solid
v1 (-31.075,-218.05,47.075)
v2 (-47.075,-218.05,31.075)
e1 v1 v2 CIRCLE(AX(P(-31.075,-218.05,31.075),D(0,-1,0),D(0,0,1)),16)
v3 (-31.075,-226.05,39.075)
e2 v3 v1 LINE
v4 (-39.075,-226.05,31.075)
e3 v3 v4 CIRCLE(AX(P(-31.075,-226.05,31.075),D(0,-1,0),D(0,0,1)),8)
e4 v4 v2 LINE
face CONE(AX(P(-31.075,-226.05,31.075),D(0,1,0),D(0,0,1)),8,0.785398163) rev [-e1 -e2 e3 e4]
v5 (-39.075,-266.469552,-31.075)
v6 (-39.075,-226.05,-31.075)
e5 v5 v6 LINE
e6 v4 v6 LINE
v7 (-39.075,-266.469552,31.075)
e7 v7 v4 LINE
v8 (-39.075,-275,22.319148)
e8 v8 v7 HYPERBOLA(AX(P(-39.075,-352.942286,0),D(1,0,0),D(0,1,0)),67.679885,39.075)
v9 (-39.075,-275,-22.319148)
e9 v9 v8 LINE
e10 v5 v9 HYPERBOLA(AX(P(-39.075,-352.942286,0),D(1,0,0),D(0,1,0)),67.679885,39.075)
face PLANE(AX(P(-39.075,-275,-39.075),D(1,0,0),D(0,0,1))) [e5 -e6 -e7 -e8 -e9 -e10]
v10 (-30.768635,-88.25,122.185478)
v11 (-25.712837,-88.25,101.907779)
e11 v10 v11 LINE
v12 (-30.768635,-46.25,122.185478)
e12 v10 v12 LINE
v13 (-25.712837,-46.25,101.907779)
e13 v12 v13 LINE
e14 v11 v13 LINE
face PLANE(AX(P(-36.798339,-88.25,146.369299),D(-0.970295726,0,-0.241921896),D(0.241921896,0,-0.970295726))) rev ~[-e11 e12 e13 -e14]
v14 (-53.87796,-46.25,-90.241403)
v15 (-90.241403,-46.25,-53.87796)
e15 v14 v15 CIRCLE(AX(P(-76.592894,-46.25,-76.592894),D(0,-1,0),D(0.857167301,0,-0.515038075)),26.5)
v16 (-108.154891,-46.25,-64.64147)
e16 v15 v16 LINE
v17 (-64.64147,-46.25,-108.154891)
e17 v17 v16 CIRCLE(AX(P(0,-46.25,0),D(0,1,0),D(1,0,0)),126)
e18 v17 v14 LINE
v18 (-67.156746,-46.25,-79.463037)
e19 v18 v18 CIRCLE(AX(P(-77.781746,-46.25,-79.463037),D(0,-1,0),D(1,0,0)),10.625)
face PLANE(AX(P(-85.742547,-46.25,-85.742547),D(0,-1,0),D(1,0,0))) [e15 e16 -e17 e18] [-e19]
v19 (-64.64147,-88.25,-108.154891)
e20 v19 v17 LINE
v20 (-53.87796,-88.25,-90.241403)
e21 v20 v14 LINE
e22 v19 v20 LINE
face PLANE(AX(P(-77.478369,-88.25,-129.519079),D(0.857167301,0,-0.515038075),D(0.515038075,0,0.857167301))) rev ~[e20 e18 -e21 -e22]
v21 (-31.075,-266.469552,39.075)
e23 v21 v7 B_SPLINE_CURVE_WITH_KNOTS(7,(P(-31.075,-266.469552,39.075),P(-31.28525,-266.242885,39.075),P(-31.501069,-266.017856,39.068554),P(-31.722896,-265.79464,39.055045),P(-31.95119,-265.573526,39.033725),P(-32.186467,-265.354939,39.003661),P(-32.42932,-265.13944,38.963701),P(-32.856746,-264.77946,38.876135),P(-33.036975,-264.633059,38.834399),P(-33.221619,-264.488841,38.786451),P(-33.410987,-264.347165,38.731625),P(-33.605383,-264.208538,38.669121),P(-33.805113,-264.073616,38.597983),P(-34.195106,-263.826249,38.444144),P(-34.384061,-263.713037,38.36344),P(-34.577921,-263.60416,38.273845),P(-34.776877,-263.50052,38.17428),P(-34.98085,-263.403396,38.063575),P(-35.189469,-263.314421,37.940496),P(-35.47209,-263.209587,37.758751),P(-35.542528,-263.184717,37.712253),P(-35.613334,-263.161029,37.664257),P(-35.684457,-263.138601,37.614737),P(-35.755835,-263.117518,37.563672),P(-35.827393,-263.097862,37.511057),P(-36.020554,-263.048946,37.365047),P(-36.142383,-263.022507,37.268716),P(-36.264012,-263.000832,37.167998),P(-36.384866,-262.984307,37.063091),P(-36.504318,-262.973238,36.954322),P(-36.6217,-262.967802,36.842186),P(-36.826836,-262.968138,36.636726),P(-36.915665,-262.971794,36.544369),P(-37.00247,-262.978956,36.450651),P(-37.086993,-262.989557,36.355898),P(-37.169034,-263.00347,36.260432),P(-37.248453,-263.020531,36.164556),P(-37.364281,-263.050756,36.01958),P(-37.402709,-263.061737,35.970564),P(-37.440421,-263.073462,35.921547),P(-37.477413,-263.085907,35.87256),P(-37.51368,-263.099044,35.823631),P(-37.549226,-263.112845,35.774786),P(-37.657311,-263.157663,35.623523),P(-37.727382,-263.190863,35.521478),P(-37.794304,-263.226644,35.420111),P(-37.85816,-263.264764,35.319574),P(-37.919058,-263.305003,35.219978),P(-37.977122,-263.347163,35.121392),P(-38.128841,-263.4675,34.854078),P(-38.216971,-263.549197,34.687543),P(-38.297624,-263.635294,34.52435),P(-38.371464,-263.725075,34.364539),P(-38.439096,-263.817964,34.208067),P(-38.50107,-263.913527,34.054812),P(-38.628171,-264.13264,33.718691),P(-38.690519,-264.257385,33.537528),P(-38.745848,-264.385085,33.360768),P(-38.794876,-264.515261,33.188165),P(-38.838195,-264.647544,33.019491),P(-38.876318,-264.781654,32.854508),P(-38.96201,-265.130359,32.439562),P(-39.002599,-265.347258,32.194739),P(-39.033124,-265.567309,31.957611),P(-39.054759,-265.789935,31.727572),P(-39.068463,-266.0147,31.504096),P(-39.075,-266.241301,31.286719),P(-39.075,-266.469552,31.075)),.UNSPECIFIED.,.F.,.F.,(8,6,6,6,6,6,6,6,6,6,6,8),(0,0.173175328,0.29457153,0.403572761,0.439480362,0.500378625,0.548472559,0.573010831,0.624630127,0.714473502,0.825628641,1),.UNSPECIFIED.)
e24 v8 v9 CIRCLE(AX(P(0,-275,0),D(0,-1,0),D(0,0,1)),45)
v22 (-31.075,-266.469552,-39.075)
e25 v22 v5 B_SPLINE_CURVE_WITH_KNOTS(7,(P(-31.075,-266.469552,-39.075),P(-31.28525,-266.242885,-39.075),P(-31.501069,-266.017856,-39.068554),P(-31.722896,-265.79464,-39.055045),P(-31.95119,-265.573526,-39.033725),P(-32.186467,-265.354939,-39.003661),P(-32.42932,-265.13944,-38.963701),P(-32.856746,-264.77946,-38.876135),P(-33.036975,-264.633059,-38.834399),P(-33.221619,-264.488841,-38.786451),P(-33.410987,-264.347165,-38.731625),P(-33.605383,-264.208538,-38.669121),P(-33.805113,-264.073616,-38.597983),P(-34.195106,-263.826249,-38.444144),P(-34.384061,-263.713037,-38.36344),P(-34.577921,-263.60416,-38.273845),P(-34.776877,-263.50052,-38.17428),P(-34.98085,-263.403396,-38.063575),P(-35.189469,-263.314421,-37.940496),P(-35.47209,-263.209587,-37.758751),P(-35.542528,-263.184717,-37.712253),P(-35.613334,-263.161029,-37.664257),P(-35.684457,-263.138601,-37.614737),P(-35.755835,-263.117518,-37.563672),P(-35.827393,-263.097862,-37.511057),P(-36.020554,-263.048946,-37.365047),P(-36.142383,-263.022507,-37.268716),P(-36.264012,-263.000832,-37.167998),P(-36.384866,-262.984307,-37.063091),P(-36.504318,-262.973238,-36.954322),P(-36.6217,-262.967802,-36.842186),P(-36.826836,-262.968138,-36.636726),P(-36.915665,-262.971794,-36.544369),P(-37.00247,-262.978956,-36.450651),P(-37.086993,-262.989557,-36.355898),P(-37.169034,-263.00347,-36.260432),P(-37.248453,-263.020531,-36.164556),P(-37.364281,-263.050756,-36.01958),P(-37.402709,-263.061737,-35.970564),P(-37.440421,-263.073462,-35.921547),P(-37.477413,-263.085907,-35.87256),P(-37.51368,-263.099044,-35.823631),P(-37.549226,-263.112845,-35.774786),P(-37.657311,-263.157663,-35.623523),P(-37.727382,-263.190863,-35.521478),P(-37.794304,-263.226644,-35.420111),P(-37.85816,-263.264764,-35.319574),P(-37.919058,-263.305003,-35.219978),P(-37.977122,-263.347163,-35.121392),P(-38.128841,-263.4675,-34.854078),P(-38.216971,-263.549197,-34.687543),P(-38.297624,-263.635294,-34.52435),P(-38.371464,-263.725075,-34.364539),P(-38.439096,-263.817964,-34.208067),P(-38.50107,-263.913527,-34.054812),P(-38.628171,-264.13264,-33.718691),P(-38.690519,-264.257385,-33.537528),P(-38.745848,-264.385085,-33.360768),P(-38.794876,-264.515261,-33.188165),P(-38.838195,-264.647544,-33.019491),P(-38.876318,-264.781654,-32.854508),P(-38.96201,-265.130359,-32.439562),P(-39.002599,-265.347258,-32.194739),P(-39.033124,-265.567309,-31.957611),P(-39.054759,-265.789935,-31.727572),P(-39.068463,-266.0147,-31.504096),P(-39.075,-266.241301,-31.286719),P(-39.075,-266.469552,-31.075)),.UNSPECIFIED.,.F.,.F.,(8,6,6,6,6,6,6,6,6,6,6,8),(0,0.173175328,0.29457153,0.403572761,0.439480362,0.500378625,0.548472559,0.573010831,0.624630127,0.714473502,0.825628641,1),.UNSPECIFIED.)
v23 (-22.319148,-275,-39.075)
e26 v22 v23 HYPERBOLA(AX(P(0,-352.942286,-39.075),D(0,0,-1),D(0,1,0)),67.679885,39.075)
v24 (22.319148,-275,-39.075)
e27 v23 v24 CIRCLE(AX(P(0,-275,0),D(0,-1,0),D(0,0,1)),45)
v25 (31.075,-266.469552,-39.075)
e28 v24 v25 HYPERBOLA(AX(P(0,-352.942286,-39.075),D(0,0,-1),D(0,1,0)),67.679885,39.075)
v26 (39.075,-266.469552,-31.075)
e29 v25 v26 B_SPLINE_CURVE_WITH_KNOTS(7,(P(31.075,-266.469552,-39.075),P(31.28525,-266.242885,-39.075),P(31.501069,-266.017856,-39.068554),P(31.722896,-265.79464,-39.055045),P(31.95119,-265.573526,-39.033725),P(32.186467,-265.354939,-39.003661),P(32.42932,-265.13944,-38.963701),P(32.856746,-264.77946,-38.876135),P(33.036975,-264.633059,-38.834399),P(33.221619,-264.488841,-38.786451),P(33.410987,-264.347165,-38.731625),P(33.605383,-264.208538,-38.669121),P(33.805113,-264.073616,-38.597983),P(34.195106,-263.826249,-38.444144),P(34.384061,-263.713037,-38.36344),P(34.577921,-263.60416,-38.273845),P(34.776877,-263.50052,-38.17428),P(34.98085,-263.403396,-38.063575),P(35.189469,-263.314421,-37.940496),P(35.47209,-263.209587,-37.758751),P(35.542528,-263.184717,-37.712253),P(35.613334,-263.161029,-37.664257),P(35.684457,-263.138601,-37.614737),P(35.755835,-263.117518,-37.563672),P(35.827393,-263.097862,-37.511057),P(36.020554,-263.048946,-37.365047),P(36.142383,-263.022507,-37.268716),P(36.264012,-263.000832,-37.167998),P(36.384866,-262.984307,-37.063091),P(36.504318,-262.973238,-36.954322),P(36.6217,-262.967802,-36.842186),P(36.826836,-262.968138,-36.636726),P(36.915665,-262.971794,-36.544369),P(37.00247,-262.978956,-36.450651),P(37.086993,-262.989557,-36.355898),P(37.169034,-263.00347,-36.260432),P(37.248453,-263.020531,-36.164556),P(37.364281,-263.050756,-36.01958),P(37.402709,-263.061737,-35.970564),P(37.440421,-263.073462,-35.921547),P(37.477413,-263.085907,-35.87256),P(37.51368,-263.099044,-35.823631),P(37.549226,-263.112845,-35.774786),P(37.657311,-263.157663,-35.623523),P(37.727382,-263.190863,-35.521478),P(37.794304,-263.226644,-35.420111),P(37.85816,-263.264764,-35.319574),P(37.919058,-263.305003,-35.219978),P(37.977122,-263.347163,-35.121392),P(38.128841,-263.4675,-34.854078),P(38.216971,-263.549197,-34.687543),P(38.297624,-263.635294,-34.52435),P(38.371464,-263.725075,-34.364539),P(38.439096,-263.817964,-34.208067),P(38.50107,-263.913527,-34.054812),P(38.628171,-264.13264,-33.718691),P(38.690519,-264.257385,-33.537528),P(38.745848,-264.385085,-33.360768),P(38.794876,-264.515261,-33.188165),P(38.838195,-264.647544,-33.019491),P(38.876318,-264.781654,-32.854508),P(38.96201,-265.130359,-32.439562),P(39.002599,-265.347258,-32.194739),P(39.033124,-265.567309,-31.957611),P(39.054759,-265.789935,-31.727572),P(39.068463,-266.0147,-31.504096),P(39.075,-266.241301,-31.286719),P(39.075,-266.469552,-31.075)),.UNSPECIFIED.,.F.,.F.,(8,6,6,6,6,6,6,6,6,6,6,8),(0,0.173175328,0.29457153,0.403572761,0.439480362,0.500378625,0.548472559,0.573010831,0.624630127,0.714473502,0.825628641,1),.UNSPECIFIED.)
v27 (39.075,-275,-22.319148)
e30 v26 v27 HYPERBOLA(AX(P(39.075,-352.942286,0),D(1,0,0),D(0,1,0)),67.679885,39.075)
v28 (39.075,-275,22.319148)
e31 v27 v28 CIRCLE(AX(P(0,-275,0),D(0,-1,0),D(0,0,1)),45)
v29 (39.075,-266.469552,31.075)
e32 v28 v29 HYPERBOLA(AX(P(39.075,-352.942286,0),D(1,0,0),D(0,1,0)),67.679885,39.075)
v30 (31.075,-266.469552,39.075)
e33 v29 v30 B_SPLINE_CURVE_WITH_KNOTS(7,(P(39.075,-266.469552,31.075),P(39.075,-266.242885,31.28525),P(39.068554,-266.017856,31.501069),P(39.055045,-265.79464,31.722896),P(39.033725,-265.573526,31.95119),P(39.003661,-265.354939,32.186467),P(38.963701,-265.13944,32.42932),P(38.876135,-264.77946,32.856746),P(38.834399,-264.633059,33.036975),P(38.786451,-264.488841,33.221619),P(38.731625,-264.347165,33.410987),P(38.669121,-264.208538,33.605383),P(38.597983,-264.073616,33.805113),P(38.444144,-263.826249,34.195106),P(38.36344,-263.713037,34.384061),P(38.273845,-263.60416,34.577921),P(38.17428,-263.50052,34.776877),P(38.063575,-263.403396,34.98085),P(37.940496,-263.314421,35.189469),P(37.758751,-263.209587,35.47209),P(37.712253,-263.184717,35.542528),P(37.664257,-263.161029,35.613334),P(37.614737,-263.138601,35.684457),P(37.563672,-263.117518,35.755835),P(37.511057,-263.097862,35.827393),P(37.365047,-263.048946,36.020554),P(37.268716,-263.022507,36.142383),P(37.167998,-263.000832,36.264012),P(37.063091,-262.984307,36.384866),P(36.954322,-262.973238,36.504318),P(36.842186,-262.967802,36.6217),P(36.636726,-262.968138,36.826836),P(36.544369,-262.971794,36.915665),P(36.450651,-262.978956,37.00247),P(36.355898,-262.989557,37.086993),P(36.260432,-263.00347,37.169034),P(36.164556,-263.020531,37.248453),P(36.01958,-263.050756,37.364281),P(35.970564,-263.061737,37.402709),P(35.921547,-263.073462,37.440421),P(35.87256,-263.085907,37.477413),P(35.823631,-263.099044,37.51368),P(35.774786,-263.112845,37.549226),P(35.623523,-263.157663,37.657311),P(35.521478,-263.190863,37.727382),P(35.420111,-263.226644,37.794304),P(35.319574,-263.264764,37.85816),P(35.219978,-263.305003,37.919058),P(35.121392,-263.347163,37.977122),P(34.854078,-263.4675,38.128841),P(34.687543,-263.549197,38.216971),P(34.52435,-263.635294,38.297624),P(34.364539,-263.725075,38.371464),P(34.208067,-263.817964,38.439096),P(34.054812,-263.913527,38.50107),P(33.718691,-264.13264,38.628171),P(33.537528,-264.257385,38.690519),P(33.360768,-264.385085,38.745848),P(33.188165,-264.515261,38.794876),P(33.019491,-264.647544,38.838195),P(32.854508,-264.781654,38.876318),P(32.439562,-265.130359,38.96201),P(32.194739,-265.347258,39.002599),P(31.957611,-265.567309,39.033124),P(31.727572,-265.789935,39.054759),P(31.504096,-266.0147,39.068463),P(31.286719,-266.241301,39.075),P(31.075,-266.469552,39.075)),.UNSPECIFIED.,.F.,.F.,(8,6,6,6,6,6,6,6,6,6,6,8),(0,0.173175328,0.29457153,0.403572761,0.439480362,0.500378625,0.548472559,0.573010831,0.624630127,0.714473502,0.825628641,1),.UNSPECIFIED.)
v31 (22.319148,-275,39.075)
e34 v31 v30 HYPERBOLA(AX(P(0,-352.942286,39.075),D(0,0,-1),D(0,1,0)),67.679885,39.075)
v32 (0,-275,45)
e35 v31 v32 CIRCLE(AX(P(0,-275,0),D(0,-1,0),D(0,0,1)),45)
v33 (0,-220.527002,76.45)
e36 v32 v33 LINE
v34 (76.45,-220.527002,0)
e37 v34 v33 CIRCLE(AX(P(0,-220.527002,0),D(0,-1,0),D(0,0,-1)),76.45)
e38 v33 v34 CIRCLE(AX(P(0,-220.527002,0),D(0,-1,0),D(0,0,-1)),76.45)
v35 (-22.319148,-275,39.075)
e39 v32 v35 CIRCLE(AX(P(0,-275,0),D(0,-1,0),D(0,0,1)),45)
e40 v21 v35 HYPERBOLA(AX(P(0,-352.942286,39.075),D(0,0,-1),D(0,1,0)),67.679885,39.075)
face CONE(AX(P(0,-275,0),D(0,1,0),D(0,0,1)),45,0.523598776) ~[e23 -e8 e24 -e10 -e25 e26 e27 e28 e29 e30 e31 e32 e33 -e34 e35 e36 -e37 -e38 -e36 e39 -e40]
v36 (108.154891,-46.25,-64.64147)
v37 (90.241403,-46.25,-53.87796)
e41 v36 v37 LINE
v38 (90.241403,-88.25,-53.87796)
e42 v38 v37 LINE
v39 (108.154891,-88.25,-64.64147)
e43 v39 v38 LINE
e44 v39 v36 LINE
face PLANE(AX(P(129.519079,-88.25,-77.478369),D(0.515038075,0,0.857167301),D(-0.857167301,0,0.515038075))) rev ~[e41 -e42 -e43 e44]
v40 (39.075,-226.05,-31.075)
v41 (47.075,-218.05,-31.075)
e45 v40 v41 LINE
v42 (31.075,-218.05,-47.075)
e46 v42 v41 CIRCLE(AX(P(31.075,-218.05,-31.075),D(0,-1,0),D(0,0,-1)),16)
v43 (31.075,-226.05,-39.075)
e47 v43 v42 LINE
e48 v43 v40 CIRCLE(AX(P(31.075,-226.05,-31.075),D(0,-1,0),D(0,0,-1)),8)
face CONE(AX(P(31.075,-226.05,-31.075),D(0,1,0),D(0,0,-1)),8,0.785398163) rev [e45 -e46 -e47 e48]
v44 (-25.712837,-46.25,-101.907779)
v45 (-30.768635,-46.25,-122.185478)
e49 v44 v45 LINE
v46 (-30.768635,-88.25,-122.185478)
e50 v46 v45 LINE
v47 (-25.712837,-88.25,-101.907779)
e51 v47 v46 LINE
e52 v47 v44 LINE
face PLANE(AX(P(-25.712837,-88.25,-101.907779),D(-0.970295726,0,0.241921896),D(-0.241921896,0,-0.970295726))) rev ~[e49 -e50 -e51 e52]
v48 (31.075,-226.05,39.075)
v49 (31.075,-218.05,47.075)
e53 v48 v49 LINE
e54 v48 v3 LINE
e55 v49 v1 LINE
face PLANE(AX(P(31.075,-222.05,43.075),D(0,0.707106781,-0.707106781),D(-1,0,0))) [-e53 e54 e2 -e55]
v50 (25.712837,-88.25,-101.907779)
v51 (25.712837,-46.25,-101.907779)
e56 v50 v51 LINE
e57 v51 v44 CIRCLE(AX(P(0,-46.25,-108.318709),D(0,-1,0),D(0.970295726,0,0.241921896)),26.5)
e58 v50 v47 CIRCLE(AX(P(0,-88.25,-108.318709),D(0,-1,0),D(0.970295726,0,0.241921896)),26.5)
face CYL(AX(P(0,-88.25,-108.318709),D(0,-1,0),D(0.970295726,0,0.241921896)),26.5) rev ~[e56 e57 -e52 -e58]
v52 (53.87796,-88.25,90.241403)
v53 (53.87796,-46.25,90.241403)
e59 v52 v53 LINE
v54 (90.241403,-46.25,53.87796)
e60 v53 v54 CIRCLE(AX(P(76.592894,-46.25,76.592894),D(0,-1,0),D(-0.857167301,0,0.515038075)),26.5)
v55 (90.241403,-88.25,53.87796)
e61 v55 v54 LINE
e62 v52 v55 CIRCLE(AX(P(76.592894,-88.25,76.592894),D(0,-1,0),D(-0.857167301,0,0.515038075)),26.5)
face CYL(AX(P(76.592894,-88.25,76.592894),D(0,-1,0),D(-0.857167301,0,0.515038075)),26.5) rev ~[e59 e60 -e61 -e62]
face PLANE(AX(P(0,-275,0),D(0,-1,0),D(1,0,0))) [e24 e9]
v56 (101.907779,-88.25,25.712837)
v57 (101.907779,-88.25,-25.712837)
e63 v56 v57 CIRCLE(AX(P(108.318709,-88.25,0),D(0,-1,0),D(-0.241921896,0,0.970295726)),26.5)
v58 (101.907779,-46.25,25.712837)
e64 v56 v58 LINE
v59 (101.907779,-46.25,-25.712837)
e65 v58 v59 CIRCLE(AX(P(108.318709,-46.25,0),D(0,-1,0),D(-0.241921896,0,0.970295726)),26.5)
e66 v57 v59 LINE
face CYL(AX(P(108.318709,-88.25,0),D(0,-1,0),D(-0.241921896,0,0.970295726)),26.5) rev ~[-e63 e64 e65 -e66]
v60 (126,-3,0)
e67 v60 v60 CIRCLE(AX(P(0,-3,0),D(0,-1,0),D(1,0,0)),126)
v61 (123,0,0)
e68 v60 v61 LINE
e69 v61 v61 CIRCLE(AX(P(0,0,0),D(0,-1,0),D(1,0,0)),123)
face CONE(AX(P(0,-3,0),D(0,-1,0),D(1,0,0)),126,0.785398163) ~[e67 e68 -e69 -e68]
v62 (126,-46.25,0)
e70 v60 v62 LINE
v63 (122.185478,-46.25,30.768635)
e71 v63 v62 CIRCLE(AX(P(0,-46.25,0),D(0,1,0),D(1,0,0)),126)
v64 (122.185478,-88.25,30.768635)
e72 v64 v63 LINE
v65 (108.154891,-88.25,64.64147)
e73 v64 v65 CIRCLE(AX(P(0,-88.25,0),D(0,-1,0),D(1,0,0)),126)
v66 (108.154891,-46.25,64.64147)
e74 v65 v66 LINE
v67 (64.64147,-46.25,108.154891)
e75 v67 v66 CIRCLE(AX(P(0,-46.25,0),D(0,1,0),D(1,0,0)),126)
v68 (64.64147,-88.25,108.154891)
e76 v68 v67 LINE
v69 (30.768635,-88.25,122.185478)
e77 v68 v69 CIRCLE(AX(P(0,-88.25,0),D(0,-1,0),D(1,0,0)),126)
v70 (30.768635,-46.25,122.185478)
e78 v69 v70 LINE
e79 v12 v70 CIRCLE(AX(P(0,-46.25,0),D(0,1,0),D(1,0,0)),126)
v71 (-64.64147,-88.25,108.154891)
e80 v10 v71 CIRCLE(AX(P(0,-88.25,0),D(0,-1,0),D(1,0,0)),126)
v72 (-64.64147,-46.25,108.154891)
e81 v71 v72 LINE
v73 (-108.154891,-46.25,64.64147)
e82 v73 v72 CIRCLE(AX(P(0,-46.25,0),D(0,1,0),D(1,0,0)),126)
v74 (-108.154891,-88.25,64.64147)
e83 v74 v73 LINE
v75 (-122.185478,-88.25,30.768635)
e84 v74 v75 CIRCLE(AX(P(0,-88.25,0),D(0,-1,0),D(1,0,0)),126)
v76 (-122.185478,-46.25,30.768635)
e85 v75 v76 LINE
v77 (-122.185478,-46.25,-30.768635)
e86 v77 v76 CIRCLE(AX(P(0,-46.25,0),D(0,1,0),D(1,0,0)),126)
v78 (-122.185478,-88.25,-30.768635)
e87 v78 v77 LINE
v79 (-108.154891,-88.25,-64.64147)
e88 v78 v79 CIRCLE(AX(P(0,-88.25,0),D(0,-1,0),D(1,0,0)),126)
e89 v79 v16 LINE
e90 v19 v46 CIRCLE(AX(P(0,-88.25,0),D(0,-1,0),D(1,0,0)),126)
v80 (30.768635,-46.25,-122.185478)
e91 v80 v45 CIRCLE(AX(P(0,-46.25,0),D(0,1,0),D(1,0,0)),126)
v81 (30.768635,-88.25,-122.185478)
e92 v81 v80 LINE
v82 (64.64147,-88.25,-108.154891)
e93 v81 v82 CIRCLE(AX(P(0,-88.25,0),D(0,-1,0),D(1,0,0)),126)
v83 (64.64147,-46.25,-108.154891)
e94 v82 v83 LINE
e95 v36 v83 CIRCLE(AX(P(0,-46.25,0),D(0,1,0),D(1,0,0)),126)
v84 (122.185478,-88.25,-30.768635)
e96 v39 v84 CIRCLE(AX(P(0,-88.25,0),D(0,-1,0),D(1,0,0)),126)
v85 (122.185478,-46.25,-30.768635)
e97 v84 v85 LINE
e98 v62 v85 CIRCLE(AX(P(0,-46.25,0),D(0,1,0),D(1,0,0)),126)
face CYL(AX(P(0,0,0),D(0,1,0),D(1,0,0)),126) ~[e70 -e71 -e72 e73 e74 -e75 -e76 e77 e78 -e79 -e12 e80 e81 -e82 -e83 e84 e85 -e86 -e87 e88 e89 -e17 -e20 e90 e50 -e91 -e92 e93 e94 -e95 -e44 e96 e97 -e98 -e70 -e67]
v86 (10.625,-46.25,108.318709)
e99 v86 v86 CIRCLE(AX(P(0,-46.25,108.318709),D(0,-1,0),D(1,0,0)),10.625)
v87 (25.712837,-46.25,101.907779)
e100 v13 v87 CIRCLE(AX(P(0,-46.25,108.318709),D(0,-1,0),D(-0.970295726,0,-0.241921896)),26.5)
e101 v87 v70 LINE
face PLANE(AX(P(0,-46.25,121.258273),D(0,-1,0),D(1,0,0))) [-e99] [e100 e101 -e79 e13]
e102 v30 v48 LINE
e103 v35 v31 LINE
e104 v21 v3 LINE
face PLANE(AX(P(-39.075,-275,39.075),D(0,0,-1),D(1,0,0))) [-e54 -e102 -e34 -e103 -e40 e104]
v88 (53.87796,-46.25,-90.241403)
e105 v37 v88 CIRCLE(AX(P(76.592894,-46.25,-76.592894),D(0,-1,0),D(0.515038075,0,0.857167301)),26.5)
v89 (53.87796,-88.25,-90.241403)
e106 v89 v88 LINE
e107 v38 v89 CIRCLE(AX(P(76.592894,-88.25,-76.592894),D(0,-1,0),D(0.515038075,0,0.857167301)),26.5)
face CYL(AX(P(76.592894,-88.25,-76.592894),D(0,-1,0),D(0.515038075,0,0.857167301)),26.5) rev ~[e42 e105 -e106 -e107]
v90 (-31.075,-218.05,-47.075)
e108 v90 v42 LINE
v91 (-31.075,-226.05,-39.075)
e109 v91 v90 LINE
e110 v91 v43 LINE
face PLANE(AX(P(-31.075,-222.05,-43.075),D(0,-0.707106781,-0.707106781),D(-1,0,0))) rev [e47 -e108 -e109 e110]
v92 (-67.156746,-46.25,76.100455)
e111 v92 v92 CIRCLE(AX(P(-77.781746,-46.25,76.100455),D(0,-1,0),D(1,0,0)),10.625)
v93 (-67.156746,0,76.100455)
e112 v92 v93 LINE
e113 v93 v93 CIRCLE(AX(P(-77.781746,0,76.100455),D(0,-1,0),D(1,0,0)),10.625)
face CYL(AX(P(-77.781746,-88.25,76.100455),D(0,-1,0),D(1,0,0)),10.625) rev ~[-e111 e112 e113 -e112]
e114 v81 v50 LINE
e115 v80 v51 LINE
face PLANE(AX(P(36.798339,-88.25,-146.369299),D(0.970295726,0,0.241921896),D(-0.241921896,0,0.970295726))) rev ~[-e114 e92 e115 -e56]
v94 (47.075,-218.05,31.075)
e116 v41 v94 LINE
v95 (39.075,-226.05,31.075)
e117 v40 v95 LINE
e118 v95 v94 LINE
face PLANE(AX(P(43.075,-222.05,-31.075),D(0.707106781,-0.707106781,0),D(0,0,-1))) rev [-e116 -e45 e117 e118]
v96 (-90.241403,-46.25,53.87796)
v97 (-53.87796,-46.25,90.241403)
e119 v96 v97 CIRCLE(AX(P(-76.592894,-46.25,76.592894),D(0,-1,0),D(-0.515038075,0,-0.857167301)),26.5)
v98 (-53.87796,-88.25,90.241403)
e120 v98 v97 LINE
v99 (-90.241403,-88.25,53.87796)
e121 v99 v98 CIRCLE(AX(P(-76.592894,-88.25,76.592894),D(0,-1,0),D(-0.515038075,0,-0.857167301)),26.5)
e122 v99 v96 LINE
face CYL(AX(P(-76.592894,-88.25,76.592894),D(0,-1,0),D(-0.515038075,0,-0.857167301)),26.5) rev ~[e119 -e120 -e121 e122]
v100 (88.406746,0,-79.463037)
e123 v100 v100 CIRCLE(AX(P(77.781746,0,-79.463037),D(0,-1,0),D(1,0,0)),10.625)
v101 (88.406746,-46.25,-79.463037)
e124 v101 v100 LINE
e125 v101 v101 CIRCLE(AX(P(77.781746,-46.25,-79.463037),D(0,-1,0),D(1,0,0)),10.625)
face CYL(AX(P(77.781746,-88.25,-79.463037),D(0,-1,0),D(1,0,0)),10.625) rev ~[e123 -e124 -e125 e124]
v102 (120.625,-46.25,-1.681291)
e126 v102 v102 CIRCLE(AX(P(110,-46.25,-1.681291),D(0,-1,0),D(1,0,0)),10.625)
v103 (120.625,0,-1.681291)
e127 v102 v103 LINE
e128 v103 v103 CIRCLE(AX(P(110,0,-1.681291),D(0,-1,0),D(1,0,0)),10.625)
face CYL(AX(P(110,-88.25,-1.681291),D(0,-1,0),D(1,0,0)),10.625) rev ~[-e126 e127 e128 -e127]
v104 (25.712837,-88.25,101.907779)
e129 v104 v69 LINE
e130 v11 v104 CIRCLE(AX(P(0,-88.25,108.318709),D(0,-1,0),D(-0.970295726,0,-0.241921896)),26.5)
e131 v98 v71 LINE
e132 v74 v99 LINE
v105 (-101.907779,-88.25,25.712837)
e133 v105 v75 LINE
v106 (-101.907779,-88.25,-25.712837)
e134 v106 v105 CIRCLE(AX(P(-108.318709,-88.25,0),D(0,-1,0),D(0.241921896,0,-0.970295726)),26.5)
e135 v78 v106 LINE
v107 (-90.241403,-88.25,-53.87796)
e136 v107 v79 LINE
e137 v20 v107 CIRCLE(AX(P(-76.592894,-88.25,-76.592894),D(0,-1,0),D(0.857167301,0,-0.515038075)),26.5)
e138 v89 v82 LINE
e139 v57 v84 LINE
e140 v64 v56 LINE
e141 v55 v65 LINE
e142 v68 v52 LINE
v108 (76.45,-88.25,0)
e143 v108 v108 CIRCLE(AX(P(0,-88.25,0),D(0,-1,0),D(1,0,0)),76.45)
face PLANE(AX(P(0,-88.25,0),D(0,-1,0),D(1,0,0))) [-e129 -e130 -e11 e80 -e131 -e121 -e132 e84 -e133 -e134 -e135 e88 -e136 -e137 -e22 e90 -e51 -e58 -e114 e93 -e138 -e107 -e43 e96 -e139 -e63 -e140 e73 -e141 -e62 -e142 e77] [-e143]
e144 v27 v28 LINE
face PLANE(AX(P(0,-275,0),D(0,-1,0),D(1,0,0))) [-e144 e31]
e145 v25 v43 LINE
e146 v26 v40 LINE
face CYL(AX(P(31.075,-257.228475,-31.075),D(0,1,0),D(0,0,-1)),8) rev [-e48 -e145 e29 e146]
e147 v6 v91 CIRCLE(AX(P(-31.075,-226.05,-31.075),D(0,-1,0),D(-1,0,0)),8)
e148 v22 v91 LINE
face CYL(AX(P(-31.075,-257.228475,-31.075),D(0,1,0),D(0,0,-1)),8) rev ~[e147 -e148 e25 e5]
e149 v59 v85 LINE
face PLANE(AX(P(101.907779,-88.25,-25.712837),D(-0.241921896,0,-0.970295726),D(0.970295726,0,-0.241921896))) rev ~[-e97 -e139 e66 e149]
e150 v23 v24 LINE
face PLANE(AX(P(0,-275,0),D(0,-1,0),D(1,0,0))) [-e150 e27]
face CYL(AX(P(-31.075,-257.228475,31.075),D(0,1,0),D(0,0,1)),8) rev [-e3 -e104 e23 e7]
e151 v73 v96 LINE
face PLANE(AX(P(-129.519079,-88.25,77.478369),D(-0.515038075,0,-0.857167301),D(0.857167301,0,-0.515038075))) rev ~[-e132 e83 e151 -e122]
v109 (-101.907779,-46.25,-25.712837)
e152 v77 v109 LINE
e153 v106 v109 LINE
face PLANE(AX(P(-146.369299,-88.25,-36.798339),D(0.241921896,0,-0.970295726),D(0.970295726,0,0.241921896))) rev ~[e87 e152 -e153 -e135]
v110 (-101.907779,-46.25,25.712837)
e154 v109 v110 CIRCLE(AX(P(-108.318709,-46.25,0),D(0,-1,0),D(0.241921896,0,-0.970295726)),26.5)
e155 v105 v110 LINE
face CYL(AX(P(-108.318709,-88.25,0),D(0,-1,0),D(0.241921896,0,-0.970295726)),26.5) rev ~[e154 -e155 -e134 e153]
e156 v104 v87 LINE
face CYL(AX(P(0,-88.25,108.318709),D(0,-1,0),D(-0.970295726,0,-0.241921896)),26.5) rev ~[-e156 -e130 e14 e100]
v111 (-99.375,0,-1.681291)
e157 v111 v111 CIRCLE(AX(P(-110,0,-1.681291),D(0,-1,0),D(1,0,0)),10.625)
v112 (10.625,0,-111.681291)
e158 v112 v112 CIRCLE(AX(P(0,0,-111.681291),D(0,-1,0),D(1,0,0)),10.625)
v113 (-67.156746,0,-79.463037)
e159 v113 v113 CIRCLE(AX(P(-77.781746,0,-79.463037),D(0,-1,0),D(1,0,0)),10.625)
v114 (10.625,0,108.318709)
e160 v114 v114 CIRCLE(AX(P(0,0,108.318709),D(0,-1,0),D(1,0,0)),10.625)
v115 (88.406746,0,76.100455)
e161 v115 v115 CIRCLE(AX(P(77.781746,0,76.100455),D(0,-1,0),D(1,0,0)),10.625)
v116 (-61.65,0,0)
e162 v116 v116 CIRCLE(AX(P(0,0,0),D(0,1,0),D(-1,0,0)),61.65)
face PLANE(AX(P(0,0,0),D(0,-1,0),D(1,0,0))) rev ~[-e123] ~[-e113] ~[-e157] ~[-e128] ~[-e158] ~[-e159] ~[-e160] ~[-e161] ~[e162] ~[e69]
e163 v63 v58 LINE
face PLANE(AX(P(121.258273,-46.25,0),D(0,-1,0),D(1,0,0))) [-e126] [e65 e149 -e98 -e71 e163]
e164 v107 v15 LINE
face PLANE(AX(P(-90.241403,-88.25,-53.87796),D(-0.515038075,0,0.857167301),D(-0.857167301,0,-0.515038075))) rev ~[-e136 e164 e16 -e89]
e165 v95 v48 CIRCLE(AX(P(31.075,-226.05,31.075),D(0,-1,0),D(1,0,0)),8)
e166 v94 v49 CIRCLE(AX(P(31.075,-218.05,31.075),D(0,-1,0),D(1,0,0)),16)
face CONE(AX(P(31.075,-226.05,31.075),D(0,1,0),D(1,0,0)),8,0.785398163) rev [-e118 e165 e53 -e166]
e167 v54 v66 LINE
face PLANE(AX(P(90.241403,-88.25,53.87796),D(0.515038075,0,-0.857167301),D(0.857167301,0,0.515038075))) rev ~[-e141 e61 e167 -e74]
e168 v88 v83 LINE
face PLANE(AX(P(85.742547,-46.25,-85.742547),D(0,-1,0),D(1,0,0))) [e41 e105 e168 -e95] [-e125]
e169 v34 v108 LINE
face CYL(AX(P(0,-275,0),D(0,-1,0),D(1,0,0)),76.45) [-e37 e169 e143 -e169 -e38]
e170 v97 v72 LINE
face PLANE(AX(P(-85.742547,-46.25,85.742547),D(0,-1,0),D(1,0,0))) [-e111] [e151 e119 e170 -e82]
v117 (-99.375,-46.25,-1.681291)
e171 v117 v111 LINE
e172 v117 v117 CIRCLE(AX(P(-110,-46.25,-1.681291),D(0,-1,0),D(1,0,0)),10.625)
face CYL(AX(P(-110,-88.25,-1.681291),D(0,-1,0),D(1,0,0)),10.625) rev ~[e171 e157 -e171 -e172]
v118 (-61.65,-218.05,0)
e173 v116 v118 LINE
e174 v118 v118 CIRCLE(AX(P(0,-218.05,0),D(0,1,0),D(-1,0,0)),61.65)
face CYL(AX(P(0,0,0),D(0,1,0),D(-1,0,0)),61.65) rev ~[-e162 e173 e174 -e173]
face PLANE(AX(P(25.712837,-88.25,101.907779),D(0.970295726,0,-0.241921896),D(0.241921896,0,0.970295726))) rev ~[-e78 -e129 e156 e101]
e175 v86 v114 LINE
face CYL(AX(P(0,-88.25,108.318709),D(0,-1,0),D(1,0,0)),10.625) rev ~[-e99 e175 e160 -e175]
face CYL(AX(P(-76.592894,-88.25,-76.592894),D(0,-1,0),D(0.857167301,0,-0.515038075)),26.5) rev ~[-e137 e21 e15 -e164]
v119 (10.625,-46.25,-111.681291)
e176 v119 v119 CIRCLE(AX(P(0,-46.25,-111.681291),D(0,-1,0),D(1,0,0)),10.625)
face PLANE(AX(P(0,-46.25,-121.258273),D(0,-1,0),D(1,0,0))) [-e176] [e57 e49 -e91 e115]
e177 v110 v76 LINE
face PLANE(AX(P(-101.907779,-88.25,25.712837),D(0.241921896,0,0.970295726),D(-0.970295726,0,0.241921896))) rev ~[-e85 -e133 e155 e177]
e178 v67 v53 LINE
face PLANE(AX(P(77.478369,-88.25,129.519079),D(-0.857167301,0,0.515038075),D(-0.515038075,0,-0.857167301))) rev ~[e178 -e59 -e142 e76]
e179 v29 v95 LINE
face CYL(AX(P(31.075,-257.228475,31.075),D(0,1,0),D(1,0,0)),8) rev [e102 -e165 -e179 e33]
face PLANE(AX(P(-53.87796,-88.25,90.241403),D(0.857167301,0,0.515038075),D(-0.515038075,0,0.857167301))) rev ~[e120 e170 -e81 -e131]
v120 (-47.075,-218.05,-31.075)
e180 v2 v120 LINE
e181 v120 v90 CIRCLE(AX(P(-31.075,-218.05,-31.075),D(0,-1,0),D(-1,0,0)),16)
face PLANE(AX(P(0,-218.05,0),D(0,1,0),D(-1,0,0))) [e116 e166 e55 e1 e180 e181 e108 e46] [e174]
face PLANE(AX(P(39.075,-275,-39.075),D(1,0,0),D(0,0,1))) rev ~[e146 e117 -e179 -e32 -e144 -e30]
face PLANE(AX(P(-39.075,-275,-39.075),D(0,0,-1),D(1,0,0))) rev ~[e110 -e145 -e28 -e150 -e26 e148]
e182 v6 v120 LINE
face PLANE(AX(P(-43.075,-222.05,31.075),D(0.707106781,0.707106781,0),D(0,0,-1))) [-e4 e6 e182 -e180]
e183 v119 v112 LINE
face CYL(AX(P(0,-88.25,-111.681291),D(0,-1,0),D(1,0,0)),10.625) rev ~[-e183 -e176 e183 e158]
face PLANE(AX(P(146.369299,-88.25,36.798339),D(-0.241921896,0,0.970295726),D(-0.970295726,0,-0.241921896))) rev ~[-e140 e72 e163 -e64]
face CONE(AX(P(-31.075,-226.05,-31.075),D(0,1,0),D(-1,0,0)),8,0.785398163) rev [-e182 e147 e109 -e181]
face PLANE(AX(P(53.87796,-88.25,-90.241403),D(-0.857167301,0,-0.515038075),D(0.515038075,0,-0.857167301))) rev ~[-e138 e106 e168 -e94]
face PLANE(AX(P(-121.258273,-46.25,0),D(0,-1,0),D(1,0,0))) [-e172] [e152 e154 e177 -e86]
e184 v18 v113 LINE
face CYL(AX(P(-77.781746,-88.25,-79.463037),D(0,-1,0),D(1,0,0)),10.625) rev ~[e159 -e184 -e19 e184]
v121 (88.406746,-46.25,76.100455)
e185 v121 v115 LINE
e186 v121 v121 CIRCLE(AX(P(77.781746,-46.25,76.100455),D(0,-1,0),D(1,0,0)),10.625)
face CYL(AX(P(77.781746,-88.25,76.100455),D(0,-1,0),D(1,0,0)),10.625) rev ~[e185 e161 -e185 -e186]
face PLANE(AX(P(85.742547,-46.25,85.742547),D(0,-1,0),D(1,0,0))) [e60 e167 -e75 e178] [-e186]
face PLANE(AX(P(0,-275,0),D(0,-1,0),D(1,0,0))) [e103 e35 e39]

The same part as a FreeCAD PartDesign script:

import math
import FreeCAD as App
import Part
import Sketcher
Q = App.Units.Quantity


def edges_at(feature, points):
    """Names of the edges that pass closest to the given points."""
    edges = feature.Shape.Edges
    near = lambda p: min(range(len(edges)), key=lambda i: edges[i].distToShape(Part.Vertex(*p))[0])
    return sorted({f"Edge{near(p) + 1}" for p in points})

doc = App.newDocument("Part")
body = doc.addObject("PartDesign::Body", "Body")

# Sketch on XZ plane
sketch1 = doc.addObject("Sketcher::SketchObject", "Sketch")
body.addObject(sketch1)
sketch1.AttachmentSupport = (doc.XZ_Plane, [""])
sketch1.MapMode = "FlatFace"
sketch1.addGeometry(Part.Circle(App.Vector(0, 0, 0), App.Vector(0, 0, 1), 126), False)
sketch1.addConstraint(Sketcher.Constraint("Coincident", 0, 3, -1, 1))
sketch1.addConstraint(Sketcher.Constraint("Diameter", 0, Q("252 mm")))
pad1 = doc.addObject("PartDesign::Pad", "Pad")
body.addObject(pad1)
pad1.Profile = sketch1
pad1.Length = 275

# Sketch on XZ plane
sketch2 = doc.addObject("Sketcher::SketchObject", "Sketch001")
body.addObject(sketch2)
sketch2.AttachmentSupport = (doc.XZ_Plane, [""])
sketch2.MapMode = "FlatFace"
sketch2.AttachmentOffset = App.Placement(App.Vector(0, 0, 275), App.Rotation())
sketch2.addGeometry(Part.Circle(App.Vector(0, 0, 0), App.Vector(0, 0, 1), 126), False)
sketch2.addGeometry(Part.Circle(App.Vector(0, 0, 0), App.Vector(0, 0, 1), 76), False)
sketch2.addConstraint(Sketcher.Constraint("Coincident", 0, 3, -1, 1))
sketch2.addConstraint(Sketcher.Constraint("Coincident", 1, 3, -1, 1))
sketch2.addConstraint(Sketcher.Constraint("Diameter", 0, Q("252 mm")))
sketch2.addConstraint(Sketcher.Constraint("Diameter", 1, Q("152.9 mm")))
pocket1 = doc.addObject("PartDesign::Pocket", "Pocket")
body.addObject(pocket1)
pocket1.Profile = sketch2
pocket1.Length = 186.75

# Sketch on XZ plane
sketch3 = doc.addObject("Sketcher::SketchObject", "Sketch002")
body.addObject(sketch3)
sketch3.AttachmentSupport = (doc.XZ_Plane, [""])
sketch3.MapMode = "FlatFace"
sketch3.AttachmentOffset = App.Placement(App.Vector(0, 0, 88.25), App.Rotation())
sketch3.addGeometry(Part.Circle(App.Vector(0, 108, 0), App.Vector(0, 0, 1), 11), False)
sketch3.addGeometry(Part.Circle(App.Vector(-78, 76, 0), App.Vector(0, 0, 1), 11), False)
sketch3.addGeometry(Part.Circle(App.Vector(-110, -2, 0), App.Vector(0, 0, 1), 11), False)
sketch3.addGeometry(Part.Circle(App.Vector(-78, -79, 0), App.Vector(0, 0, 1), 11), False)
sketch3.addGeometry(Part.Circle(App.Vector(0, -112, 0), App.Vector(0, 0, 1), 11), False)
sketch3.addGeometry(Part.Circle(App.Vector(78, -79, 0), App.Vector(0, 0, 1), 11), False)
sketch3.addGeometry(Part.Circle(App.Vector(110, -2, 0), App.Vector(0, 0, 1), 11), False)
sketch3.addGeometry(Part.Circle(App.Vector(78, 76, 0), App.Vector(0, 0, 1), 11), False)
sketch3.addConstraint(Sketcher.Constraint("Equal", 0, 1))
sketch3.addConstraint(Sketcher.Constraint("Equal", 1, 2))
sketch3.addConstraint(Sketcher.Constraint("Equal", 2, 3))
sketch3.addConstraint(Sketcher.Constraint("Equal", 3, 4))
sketch3.addConstraint(Sketcher.Constraint("Equal", 4, 5))
sketch3.addConstraint(Sketcher.Constraint("Equal", 5, 6))
sketch3.addConstraint(Sketcher.Constraint("Equal", 6, 7))
sketch3.addConstraint(Sketcher.Constraint("Symmetric", 3, 3, 5, 3, -2))
sketch3.addConstraint(Sketcher.Constraint("Symmetric", 2, 3, 6, 3, -2))
sketch3.addConstraint(Sketcher.Constraint("Symmetric", 1, 3, 7, 3, -2))
sketch3.addConstraint(Sketcher.Constraint("PointOnObject", 0, 3, -2))
sketch3.addConstraint(Sketcher.Constraint("PointOnObject", 4, 3, -2))
sketch3.addConstraint(Sketcher.Constraint("Vertical", 1, 3, 3, 3))
sketch3.addConstraint(Sketcher.Constraint("Diameter", 0, Q("21.25 mm")))
sketch3.addConstraint(Sketcher.Constraint("DistanceX", 2, 3, -1, 1, Q("110 mm")))
sketch3.addConstraint(Sketcher.Constraint("DistanceY", 2, 3, 0, 3, Q("110 mm")))
sketch3.addConstraint(Sketcher.Constraint("DistanceY", 4, 3, 2, 3, Q("110 mm")))
sketch3.addConstraint(Sketcher.Constraint("DistanceY", -1, 1, 0, 3, Q("108.318709 mm")))
sketch3.addConstraint(Sketcher.Constraint("DistanceY", 3, 3, 1, 3, Q("155.563492 mm")))
sketch3.addConstraint(Sketcher.Constraint("DistanceX", 3, 3, 5, 3, Q("155.563492 mm")))
sketch3.addConstraint(Sketcher.Constraint("DistanceY", -1, 1, 1, 3, Q("76.100455 mm")))
pocket2 = doc.addObject("PartDesign::Pocket", "Pocket001")
body.addObject(pocket2)
pocket2.Profile = sketch3
pocket2.Length = 25

# Sketch on XZ plane
sketch4 = doc.addObject("Sketcher::SketchObject", "Sketch003")
body.addObject(sketch4)
sketch4.AttachmentSupport = (doc.XZ_Plane, [""])
sketch4.MapMode = "FlatFace"
sketch4.AttachmentOffset = App.Placement(App.Vector(0, 0, 88.25), App.Rotation())
sketch4.addGeometry(Part.Circle(App.Vector(0, 108, 0), App.Vector(0, 0, 1), 11), False)
sketch4.addGeometry(Part.Circle(App.Vector(-78, 76, 0), App.Vector(0, 0, 1), 11), False)
sketch4.addGeometry(Part.Circle(App.Vector(-110, -2, 0), App.Vector(0, 0, 1), 11), False)
sketch4.addGeometry(Part.Circle(App.Vector(-78, -79, 0), App.Vector(0, 0, 1), 11), False)
sketch4.addGeometry(Part.Circle(App.Vector(0, -112, 0), App.Vector(0, 0, 1), 11), False)
sketch4.addGeometry(Part.Circle(App.Vector(78, -79, 0), App.Vector(0, 0, 1), 11), False)
sketch4.addGeometry(Part.Circle(App.Vector(110, -2, 0), App.Vector(0, 0, 1), 11), False)
sketch4.addGeometry(Part.Circle(App.Vector(78, 76, 0), App.Vector(0, 0, 1), 11), False)
sketch4.addConstraint(Sketcher.Constraint("Equal", 0, 1))
sketch4.addConstraint(Sketcher.Constraint("Equal", 1, 2))
sketch4.addConstraint(Sketcher.Constraint("Equal", 2, 3))
sketch4.addConstraint(Sketcher.Constraint("Equal", 3, 4))
sketch4.addConstraint(Sketcher.Constraint("Equal", 4, 5))
sketch4.addConstraint(Sketcher.Constraint("Equal", 5, 6))
sketch4.addConstraint(Sketcher.Constraint("Equal", 6, 7))
sketch4.addConstraint(Sketcher.Constraint("Symmetric", 3, 3, 5, 3, -2))
sketch4.addConstraint(Sketcher.Constraint("Symmetric", 2, 3, 6, 3, -2))
sketch4.addConstraint(Sketcher.Constraint("Symmetric", 1, 3, 7, 3, -2))
sketch4.addConstraint(Sketcher.Constraint("PointOnObject", 0, 3, -2))
sketch4.addConstraint(Sketcher.Constraint("PointOnObject", 4, 3, -2))
sketch4.addConstraint(Sketcher.Constraint("Vertical", 1, 3, 3, 3))
sketch4.addConstraint(Sketcher.Constraint("Diameter", 0, Q("21.25 mm")))
sketch4.addConstraint(Sketcher.Constraint("DistanceX", 2, 3, -1, 1, Q("110 mm")))
sketch4.addConstraint(Sketcher.Constraint("DistanceY", 2, 3, 0, 3, Q("110 mm")))
sketch4.addConstraint(Sketcher.Constraint("DistanceY", 4, 3, 2, 3, Q("110 mm")))
sketch4.addConstraint(Sketcher.Constraint("DistanceY", -1, 1, 0, 3, Q("108.318709 mm")))
sketch4.addConstraint(Sketcher.Constraint("DistanceY", 3, 3, 1, 3, Q("155.563492 mm")))
sketch4.addConstraint(Sketcher.Constraint("DistanceX", 3, 3, 5, 3, Q("155.563492 mm")))
sketch4.addConstraint(Sketcher.Constraint("DistanceY", -1, 1, 1, 3, Q("76.100455 mm")))
pocket3 = doc.addObject("PartDesign::Pocket", "Pocket002")
body.addObject(pocket3)
pocket3.Profile = sketch4
pocket3.Length = 169

# Sketch on XZ plane
sketch5 = doc.addObject("Sketcher::SketchObject", "Sketch004")
body.addObject(sketch5)
sketch5.AttachmentSupport = (doc.XZ_Plane, [""])
sketch5.MapMode = "FlatFace"
sketch5.AttachmentOffset = App.Placement(App.Vector(0, 0, 88.25), App.Rotation())
sketch5.addGeometry(Part.LineSegment(App.Vector(-37, 146, 0), App.Vector(-26, 102, 0)), False)
sketch5.addGeometry(Part.ArcOfCircle(Part.Circle(App.Vector(0, 108, 0), App.Vector(0, 0, 1), 26), math.radians(-166), math.radians(-14)), False)
sketch5.addGeometry(Part.LineSegment(App.Vector(26, 102, 0), App.Vector(37, 146, 0)), False)
sketch5.addGeometry(Part.LineSegment(App.Vector(37, 146, 0), App.Vector(-37, 146, 0)), False)
sketch5.addGeometry(Part.LineSegment(App.Vector(-54, 90, 0), App.Vector(-77, 130, 0)), False)
sketch5.addGeometry(Part.LineSegment(App.Vector(-77, 130, 0), App.Vector(-130, 77, 0)), False)
sketch5.addGeometry(Part.LineSegment(App.Vector(-130, 77, 0), App.Vector(-90, 54, 0)), False)
sketch5.addGeometry(Part.ArcOfCircle(Part.Circle(App.Vector(-77, 77, 0), App.Vector(0, 0, 1), 26), math.radians(-121), math.radians(31)), False)
sketch5.addGeometry(Part.LineSegment(App.Vector(-102, 26, 0), App.Vector(-146, 37, 0)), False)
sketch5.addGeometry(Part.LineSegment(App.Vector(-146, 37, 0), App.Vector(-146, -37, 0)), False)
sketch5.addGeometry(Part.LineSegment(App.Vector(-146, -37, 0), App.Vector(-102, -26, 0)), False)
sketch5.addGeometry(Part.ArcOfCircle(Part.Circle(App.Vector(-108, 0, 0), App.Vector(0, 0, 1), 26), math.radians(-76), math.radians(76)), False)
sketch5.addGeometry(Part.LineSegment(App.Vector(-90, -54, 0), App.Vector(-130, -77, 0)), False)
sketch5.addGeometry(Part.LineSegment(App.Vector(-130, -77, 0), App.Vector(-77, -130, 0)), False)
sketch5.addGeometry(Part.LineSegment(App.Vector(-77, -130, 0), App.Vector(-54, -90, 0)), False)
sketch5.addGeometry(Part.ArcOfCircle(Part.Circle(App.Vector(-77, -77, 0), App.Vector(0, 0, 1), 26), math.radians(-31), math.radians(121)), False)
sketch5.addGeometry(Part.LineSegment(App.Vector(-26, -102, 0), App.Vector(-37, -146, 0)), False)
sketch5.addGeometry(Part.LineSegment(App.Vector(-37, -146, 0), App.Vector(37, -146, 0)), False)
sketch5.addGeometry(Part.LineSegment(App.Vector(37, -146, 0), App.Vector(26, -102, 0)), False)
sketch5.addGeometry(Part.ArcOfCircle(Part.Circle(App.Vector(0, -108, 0), App.Vector(0, 0, 1), 26), math.radians(14), math.radians(166)), False)
sketch5.addGeometry(Part.LineSegment(App.Vector(54, -90, 0), App.Vector(77, -130, 0)), False)
sketch5.addGeometry(Part.LineSegment(App.Vector(77, -130, 0), App.Vector(130, -77, 0)), False)
sketch5.addGeometry(Part.LineSegment(App.Vector(130, -77, 0), App.Vector(90, -54, 0)), False)
sketch5.addGeometry(Part.ArcOfCircle(Part.Circle(App.Vector(77, -77, 0), App.Vector(0, 0, 1), 26), math.radians(59), math.radians(211)), False)
sketch5.addGeometry(Part.LineSegment(App.Vector(102, -26, 0), App.Vector(146, -37, 0)), False)
sketch5.addGeometry(Part.LineSegment(App.Vector(146, -37, 0), App.Vector(146, 37, 0)), False)
sketch5.addGeometry(Part.LineSegment(App.Vector(146, 37, 0), App.Vector(102, 26, 0)), False)
sketch5.addGeometry(Part.ArcOfCircle(Part.Circle(App.Vector(108, 0, 0), App.Vector(0, 0, 1), 26), math.radians(104), math.radians(256)), False)
sketch5.addGeometry(Part.LineSegment(App.Vector(90, 54, 0), App.Vector(130, 77, 0)), False)
sketch5.addGeometry(Part.LineSegment(App.Vector(130, 77, 0), App.Vector(77, 130, 0)), False)
sketch5.addGeometry(Part.LineSegment(App.Vector(77, 130, 0), App.Vector(54, 90, 0)), False)
sketch5.addGeometry(Part.ArcOfCircle(Part.Circle(App.Vector(77, 77, 0), App.Vector(0, 0, 1), 26), math.radians(149), math.radians(301)), False)
sketch5.addConstraint(Sketcher.Constraint("Tangent", 0, 2, 1, 1))
sketch5.addConstraint(Sketcher.Constraint("Tangent", 1, 2, 2, 1))
sketch5.addConstraint(Sketcher.Constraint("Coincident", 2, 2, 3, 1))
sketch5.addConstraint(Sketcher.Constraint("Coincident", 3, 2, 0, 1))
sketch5.addConstraint(Sketcher.Constraint("Coincident", 4, 2, 5, 1))
sketch5.addConstraint(Sketcher.Constraint("Coincident", 5, 2, 6, 1))
sketch5.addConstraint(Sketcher.Constraint("Tangent", 6, 2, 7, 1))
sketch5.addConstraint(Sketcher.Constraint("Tangent", 7, 2, 4, 1))
sketch5.addConstraint(Sketcher.Constraint("Coincident", 8, 2, 9, 1))
sketch5.addConstraint(Sketcher.Constraint("Coincident", 9, 2, 10, 1))
sketch5.addConstraint(Sketcher.Constraint("Tangent", 10, 2, 11, 1))
sketch5.addConstraint(Sketcher.Constraint("Tangent", 11, 2, 8, 1))
sketch5.addConstraint(Sketcher.Constraint("Coincident", 12, 2, 13, 1))
sketch5.addConstraint(Sketcher.Constraint("Coincident", 13, 2, 14, 1))
sketch5.addConstraint(Sketcher.Constraint("Tangent", 14, 2, 15, 1))
sketch5.addConstraint(Sketcher.Constraint("Tangent", 15, 2, 12, 1))
sketch5.addConstraint(Sketcher.Constraint("Coincident", 16, 2, 17, 1))
sketch5.addConstraint(Sketcher.Constraint("Coincident", 17, 2, 18, 1))
sketch5.addConstraint(Sketcher.Constraint("Tangent", 18, 2, 19, 1))
sketch5.addConstraint(Sketcher.Constraint("Tangent", 19, 2, 16, 1))
sketch5.addConstraint(Sketcher.Constraint("Coincident", 20, 2, 21, 1))
sketch5.addConstraint(Sketcher.Constraint("Coincident", 21, 2, 22, 1))
sketch5.addConstraint(Sketcher.Constraint("Tangent", 22, 2, 23, 1))
sketch5.addConstraint(Sketcher.Constraint("Tangent", 23, 2, 20, 1))
sketch5.addConstraint(Sketcher.Constraint("Coincident", 24, 2, 25, 1))
sketch5.addConstraint(Sketcher.Constraint("Coincident", 25, 2, 26, 1))
sketch5.addConstraint(Sketcher.Constraint("Tangent", 26, 2, 27, 1))
sketch5.addConstraint(Sketcher.Constraint("Tangent", 27, 2, 24, 1))
sketch5.addConstraint(Sketcher.Constraint("Coincident", 28, 2, 29, 1))
sketch5.addConstraint(Sketcher.Constraint("Coincident", 29, 2, 30, 1))
sketch5.addConstraint(Sketcher.Constraint("Tangent", 30, 2, 31, 1))
sketch5.addConstraint(Sketcher.Constraint("Tangent", 31, 2, 28, 1))
sketch5.addConstraint(Sketcher.Constraint("Horizontal", 3))
sketch5.addConstraint(Sketcher.Constraint("Vertical", 9))
sketch5.addConstraint(Sketcher.Constraint("Horizontal", 17))
sketch5.addConstraint(Sketcher.Constraint("Vertical", 25))
sketch5.addConstraint(Sketcher.Constraint("Equal", 1, 7))
sketch5.addConstraint(Sketcher.Constraint("Equal", 7, 11))
sketch5.addConstraint(Sketcher.Constraint("Equal", 11, 15))
sketch5.addConstraint(Sketcher.Constraint("Equal", 15, 19))
sketch5.addConstraint(Sketcher.Constraint("Equal", 19, 23))
sketch5.addConstraint(Sketcher.Constraint("Equal", 23, 27))
sketch5.addConstraint(Sketcher.Constraint("Equal", 27, 31))
sketch5.addConstraint(Sketcher.Constraint("Symmetric", 1, 3, 19, 3, -1, 1))
sketch5.addConstraint(Sketcher.Constraint("Symmetric", 7, 3, 23, 3, -1, 1))
sketch5.addConstraint(Sketcher.Constraint("Symmetric", 11, 3, 27, 3, -1, 1))
sketch5.addConstraint(Sketcher.Constraint("Symmetric", 15, 3, 31, 3, -1, 1))
sketch5.addConstraint(Sketcher.Constraint("Symmetric", 2, 2, 16, 2, -1, 1))
sketch5.addConstraint(Sketcher.Constraint("Symmetric", 4, 2, 20, 2, -1, 1))
sketch5.addConstraint(Sketcher.Constraint("Symmetric", 5, 2, 21, 2, -1, 1))
sketch5.addConstraint(Sketcher.Constraint("Symmetric", 8, 2, 24, 2, -1, 1))
sketch5.addConstraint(Sketcher.Constraint("Symmetric", 12, 2, 28, 2, -1, 1))
sketch5.addConstraint(Sketcher.Constraint("Symmetric", 13, 2, 29, 2, -1, 1))
sketch5.addConstraint(Sketcher.Constraint("Symmetric", 15, 3, 23, 3, -2))
sketch5.addConstraint(Sketcher.Constraint("Symmetric", 0, 2, 1, 2, -2))
sketch5.addConstraint(Sketcher.Constraint("Symmetric", 13, 2, 20, 2, -2))
sketch5.addConstraint(Sketcher.Constraint("Symmetric", 12, 2, 21, 2, -2))
sketch5.addConstraint(Sketcher.Constraint("Symmetric", 11, 2, 26, 2, -2))
sketch5.addConstraint(Sketcher.Constraint("Perpendicular", 2, 8))
sketch5.addConstraint(Sketcher.Constraint("Perpendicular", 0, 10))
sketch5.addConstraint(Sketcher.Constraint("Perpendicular", 4, 12))
sketch5.addConstraint(Sketcher.Constraint("Perpendicular", 5, 13))
sketch5.addConstraint(Sketcher.Constraint("Perpendicular", 10, 18))
sketch5.addConstraint(Sketcher.Constraint("Equal", 17, 9))
sketch5.addConstraint(Sketcher.Constraint("Equal", 2, 4))
sketch5.addConstraint(Sketcher.Constraint("Radius", 1, Q("26.5 mm")))
sketch5.addConstraint(Sketcher.Constraint("Angle", 0, Q("-76 deg")))
sketch5.addConstraint(Sketcher.Constraint("Angle", 4, Q("121 deg")))
sketch5.addConstraint(Sketcher.Constraint("DistanceY", -1, 1, 2, 2, Q("146.369299 mm")))
sketch5.addConstraint(Sketcher.Constraint("DistanceX", 8, 2, -1, 1, Q("146.369299 mm")))
sketch5.addConstraint(Sketcher.Constraint("DistanceX", 1, 2, 2, 2, Q("11.085502 mm")))
sketch5.addConstraint(Sketcher.Constraint("DistanceY", 0, 2, 4, 2, Q("27.6113 mm")))
sketch5.addConstraint(Sketcher.Constraint("DistanceX", 12, 2, 10, 2, Q("27.6113 mm")))
pocket4 = doc.addObject("PartDesign::Pocket", "Pocket003")
body.addObject(pocket4)
pocket4.Profile = sketch5
pocket4.Length = 42
doc.recompute()

chamfer = doc.addObject("PartDesign::Chamfer", "Chamfer")
body.addObject(chamfer)
chamfer.Base = (pocket4, edges_at(pocket4, [(-126, 0, 0)]))
chamfer.Size = 3

# Sketch on XZ plane
sketch6 = doc.addObject("Sketcher::SketchObject", "Sketch005")
body.addObject(sketch6)
sketch6.AttachmentSupport = (doc.XZ_Plane, [""])
sketch6.MapMode = "FlatFace"
sketch6.addGeometry(Part.Circle(App.Vector(0, 0, 0), App.Vector(0, 0, 1), 62), False)
sketch6.addConstraint(Sketcher.Constraint("Coincident", 0, 3, -1, 1))
sketch6.addConstraint(Sketcher.Constraint("Diameter", 0, Q("123.3 mm")))
pocket5 = doc.addObject("PartDesign::Pocket", "Pocket004")
body.addObject(pocket5)
pocket5.Profile = sketch6
pocket5.Length = 218.05
pocket5.Reversed = True

# Sketch on YZ plane
sketch7 = doc.addObject("Sketcher::SketchObject", "Sketch006")
body.addObject(sketch7)
sketch7.AttachmentSupport = (doc.YZ_Plane, [""])
sketch7.MapMode = "FlatFace"
sketch7.addGeometry(Part.LineSegment(App.Vector(-287, 86, 0), App.Vector(-275, 45, 0)), False)
sketch7.addGeometry(Part.LineSegment(App.Vector(-275, 45, 0), App.Vector(-211, 82, 0)), False)
sketch7.addGeometry(Part.LineSegment(App.Vector(-211, 82, 0), App.Vector(-287, 86, 0)), False)
sketch7.addConstraint(Sketcher.Constraint("Coincident", 0, 2, 1, 1))
sketch7.addConstraint(Sketcher.Constraint("Coincident", 1, 2, 2, 1))
sketch7.addConstraint(Sketcher.Constraint("Coincident", 2, 2, 0, 1))
sketch7.addConstraint(Sketcher.Constraint("Angle", 1, Q("30 deg")))
sketch7.addConstraint(Sketcher.Constraint("DistanceX", 0, 2, -1, 1, Q("275 mm")))
sketch7.addConstraint(Sketcher.Constraint("DistanceY", -1, 1, 0, 2, Q("45 mm")))
sketch7.addConstraint(Sketcher.Constraint("Distance", 1, Q("74.21517 mm")))
sketch7.addConstraint(Sketcher.Constraint("DistanceX", 2, 2, -1, 1, Q("287.491292 mm")))
sketch7.addConstraint(Sketcher.Constraint("DistanceY", -1, 1, 2, 2, Q("86.09347 mm")))
groove = doc.addObject("PartDesign::Groove", "Groove")
body.addObject(groove)
groove.Profile = sketch7
groove.ReferenceAxis = (sketch7, ["H_Axis"])
groove.Angle = 360

# Sketch on XZ plane
sketch8 = doc.addObject("Sketcher::SketchObject", "Sketch007")
body.addObject(sketch8)
sketch8.AttachmentSupport = (doc.XZ_Plane, [""])
sketch8.MapMode = "FlatFace"
sketch8.AttachmentOffset = App.Placement(App.Vector(0, 0, 275), App.Rotation())
sketch8.addGeometry(Part.LineSegment(App.Vector(-39, 39, 0), App.Vector(-39, -39, 0)), False)
sketch8.addGeometry(Part.LineSegment(App.Vector(-39, -39, 0), App.Vector(39, -39, 0)), False)
sketch8.addGeometry(Part.LineSegment(App.Vector(39, -39, 0), App.Vector(39, 39, 0)), False)
sketch8.addGeometry(Part.LineSegment(App.Vector(39, 39, 0), App.Vector(-39, 39, 0)), False)
sketch8.addConstraint(Sketcher.Constraint("Coincident", 0, 2, 1, 1))
sketch8.addConstraint(Sketcher.Constraint("Coincident", 1, 2, 2, 1))
sketch8.addConstraint(Sketcher.Constraint("Coincident", 2, 2, 3, 1))
sketch8.addConstraint(Sketcher.Constraint("Coincident", 3, 2, 0, 1))
sketch8.addConstraint(Sketcher.Constraint("Vertical", 0))
sketch8.addConstraint(Sketcher.Constraint("Horizontal", 1))
sketch8.addConstraint(Sketcher.Constraint("Vertical", 2))
sketch8.addConstraint(Sketcher.Constraint("Horizontal", 3))
sketch8.addConstraint(Sketcher.Constraint("Symmetric", 0, 2, 2, 2, -1, 1))
sketch8.addConstraint(Sketcher.Constraint("Equal", 3, 0))
sketch8.addConstraint(Sketcher.Constraint("DistanceX", 1, 1, 1, 2, Q("78.15 mm")))
pocket6 = doc.addObject("PartDesign::Pocket", "Pocket005")
body.addObject(pocket6)
pocket6.Profile = sketch8
pocket6.Length = 60
doc.recompute()

fillet = doc.addObject("PartDesign::Fillet", "Fillet")
body.addObject(fillet)
fillet.Base = (pocket6, edges_at(pocket6, [(-39.075, -237.639, -39.075)]))
fillet.Radius = 8
doc.recompute()

fillet2 = doc.addObject("PartDesign::Fillet", "Fillet001")
body.addObject(fillet2)
fillet2.Base = (fillet, edges_at(fillet, [(39.075, -237.639, 39.075)]))
fillet2.Radius = 8
doc.recompute()

fillet3 = doc.addObject("PartDesign::Fillet", "Fillet002")
body.addObject(fillet3)
fillet3.Base = (fillet2, edges_at(fillet2, [(-39.075, -237.639, 39.075)]))
fillet3.Radius = 8
doc.recompute()

fillet4 = doc.addObject("PartDesign::Fillet", "Fillet003")
body.addObject(fillet4)
fillet4.Base = (fillet3, edges_at(fillet3, [(39.075, -237.639, -39.075)]))
fillet4.Radius = 8
doc.recompute()

chamfer2 = doc.addObject("PartDesign::Chamfer", "Chamfer001")
body.addObject(chamfer2)
chamfer2.Base = (fillet4, edges_at(fillet4, [
    (-39.075, -218.05, 0),
    (-36.732, -218.05, 36.732),
    (0, -218.05, 39.075),
    (36.732, -218.05, 36.732),
    (39.075, -218.05, 0),
    (0, -218.05, -39.075),
    (-36.732, -218.05, -36.732),
    (36.732, -218.05, -36.732),
]))
chamfer2.Size = 8

doc.recompute()
